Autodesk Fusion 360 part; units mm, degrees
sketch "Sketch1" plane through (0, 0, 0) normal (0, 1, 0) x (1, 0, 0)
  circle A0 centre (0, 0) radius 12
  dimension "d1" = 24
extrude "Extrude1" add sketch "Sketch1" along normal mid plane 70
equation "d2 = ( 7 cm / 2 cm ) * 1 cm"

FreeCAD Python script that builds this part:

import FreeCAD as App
import Part
import Sketcher

V = App.Vector
Q = App.Units.Quantity

doc = App.newDocument("Part")
params = doc.addObject("Spreadsheet::Sheet", "Params")
for row, (alias, value) in enumerate([
    ("sketch1_diameter", "24 mm"),
    ("pad1_length", "70 mm"),
], start=1):
    params.set(f"A{row}", alias)
    params.set(f"B{row}", "=" + value)
    params.setAlias(f"B{row}", alias)

body = doc.addObject("PartDesign::Body", "Body")

# Sketch on XZ plane
sketch1 = body.newObject("Sketcher::SketchObject", "Sketch")
sketch1.AttachmentSupport = (doc.getObject("XZ_Plane"), [""])
sketch1.MapMode = "FlatFace"
sketch1.addGeometry(Part.Circle(V(0, 0, 0), V(0, 0, 1), 12), False)
sketch1.addConstraint([
    Sketcher.Constraint("Coincident", 0, 3, -1, 1),
    Sketcher.Constraint("Diameter", 0, Q("24 mm")),
])
sketch1.setExpression("Constraints[1]", "Params.sketch1_diameter")
pad1 = body.newObject("PartDesign::Pad", "Pad")
pad1.Profile = sketch1
pad1.setExpression("Length", "Params.pad1_length")
pad1.Midplane = True

doc.recompute()
